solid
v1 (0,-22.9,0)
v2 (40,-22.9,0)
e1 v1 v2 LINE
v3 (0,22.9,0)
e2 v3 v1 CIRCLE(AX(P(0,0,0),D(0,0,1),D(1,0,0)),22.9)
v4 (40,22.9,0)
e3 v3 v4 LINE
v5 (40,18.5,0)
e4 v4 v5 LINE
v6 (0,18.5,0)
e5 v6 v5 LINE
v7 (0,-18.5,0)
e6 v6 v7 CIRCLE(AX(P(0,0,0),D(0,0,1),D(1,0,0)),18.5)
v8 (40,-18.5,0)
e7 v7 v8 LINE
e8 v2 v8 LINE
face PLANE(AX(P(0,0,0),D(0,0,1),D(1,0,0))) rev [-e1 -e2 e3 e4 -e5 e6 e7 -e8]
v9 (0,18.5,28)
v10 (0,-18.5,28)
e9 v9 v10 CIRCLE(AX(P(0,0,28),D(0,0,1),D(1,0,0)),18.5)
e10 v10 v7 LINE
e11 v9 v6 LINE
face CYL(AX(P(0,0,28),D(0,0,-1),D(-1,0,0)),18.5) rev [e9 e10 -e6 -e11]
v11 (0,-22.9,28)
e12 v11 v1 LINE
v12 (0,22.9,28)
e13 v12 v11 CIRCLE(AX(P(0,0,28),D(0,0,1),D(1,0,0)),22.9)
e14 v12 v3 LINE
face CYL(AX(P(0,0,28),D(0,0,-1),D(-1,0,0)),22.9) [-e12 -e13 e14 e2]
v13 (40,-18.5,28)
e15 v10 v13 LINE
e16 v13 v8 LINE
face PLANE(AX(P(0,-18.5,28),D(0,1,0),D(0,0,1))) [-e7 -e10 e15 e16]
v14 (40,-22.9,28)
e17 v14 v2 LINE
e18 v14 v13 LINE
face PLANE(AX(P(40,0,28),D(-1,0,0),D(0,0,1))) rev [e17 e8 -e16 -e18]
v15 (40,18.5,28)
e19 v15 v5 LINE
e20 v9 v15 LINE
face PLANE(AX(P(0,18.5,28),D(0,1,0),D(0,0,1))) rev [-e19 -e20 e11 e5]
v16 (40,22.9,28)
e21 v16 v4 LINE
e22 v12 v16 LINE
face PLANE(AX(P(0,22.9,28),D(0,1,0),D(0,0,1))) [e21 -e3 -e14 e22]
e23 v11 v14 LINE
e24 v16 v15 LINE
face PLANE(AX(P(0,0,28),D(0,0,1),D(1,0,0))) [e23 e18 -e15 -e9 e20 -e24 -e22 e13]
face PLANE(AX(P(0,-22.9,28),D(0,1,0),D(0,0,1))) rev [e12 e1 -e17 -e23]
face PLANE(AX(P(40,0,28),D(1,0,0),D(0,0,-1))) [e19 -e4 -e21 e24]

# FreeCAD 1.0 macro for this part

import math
import FreeCAD as App
import Part
import Sketcher

doc = App.newDocument("Part")
params = doc.addObject("Spreadsheet::Sheet", "Params")
for row, (alias, value) in enumerate([
    ("sketch1_radius", "22.9 mm"),
    ("sketch1_radius2", "18.5 mm"),
    ("sketch1_width", "40 mm"),
    ("pad1_length", "28 mm"),
], start=1):
    params.set(f"A{row}", alias)
    params.set(f"B{row}", "=" + value)
    params.setAlias(f"B{row}", alias)

body = doc.addObject("PartDesign::Body", "Body")

# Sketch on XY plane
sketch1 = body.newObject("Sketcher::SketchObject", "Sketch")
sketch1.AttachmentSupport = (doc.getObject("XY_Plane"), [""])
sketch1.MapMode = "FlatFace"
sketch1.addGeometry(Part.LineSegment(App.Vector(40, 18.5, 0), App.Vector(40, 22.9, 0)), False)
sketch1.addGeometry(Part.LineSegment(App.Vector(40, 22.9, 0), App.Vector(0, 22.9, 0)), False)
sketch1.addGeometry(Part.ArcOfCircle(Part.Circle(App.Vector(0, 0, 0), App.Vector(0, 0, 1), 22.9), math.radians(90), math.radians(270)), False)
sketch1.addGeometry(Part.LineSegment(App.Vector(0, -22.9, 0), App.Vector(40, -22.9, 0)), False)
sketch1.addGeometry(Part.LineSegment(App.Vector(40, -22.9, 0), App.Vector(40, -18.5, 0)), False)
sketch1.addGeometry(Part.LineSegment(App.Vector(40, -18.5, 0), App.Vector(0, -18.5, 0)), False)
sketch1.addGeometry(Part.ArcOfCircle(Part.Circle(App.Vector(0, 0, 0), App.Vector(0, 0, 1), 18.5), math.radians(90), math.radians(270)), False)
sketch1.addGeometry(Part.LineSegment(App.Vector(0, 18.5, 0), App.Vector(40, 18.5, 0)), False)
sketch1.addConstraint(Sketcher.Constraint("Coincident", 0, 2, 1, 1))
sketch1.addConstraint(Sketcher.Constraint("Tangent", 1, 2, 2, 1))
sketch1.addConstraint(Sketcher.Constraint("Tangent", 2, 2, 3, 1))
sketch1.addConstraint(Sketcher.Constraint("Coincident", 3, 2, 4, 1))
sketch1.addConstraint(Sketcher.Constraint("Coincident", 4, 2, 5, 1))
sketch1.addConstraint(Sketcher.Constraint("Tangent", 5, 2, 6, 2))
sketch1.addConstraint(Sketcher.Constraint("Tangent", 6, 1, 7, 1))
sketch1.addConstraint(Sketcher.Constraint("Coincident", 7, 2, 0, 1))
sketch1.addConstraint(Sketcher.Constraint("Vertical", 0))
sketch1.addConstraint(Sketcher.Constraint("Horizontal", 1))
sketch1.addConstraint(Sketcher.Constraint("Horizontal", 3))
sketch1.addConstraint(Sketcher.Constraint("Vertical", 4))
sketch1.addConstraint(Sketcher.Constraint("Horizontal", 5))
sketch1.addConstraint(Sketcher.Constraint("Horizontal", 7))
sketch1.addConstraint(Sketcher.Constraint("Coincident", 2, 3, -1, 1))
sketch1.addConstraint(Sketcher.Constraint("Coincident", 6, 3, -1, 1))
sketch1.addConstraint(Sketcher.Constraint("Vertical", 0, 2, 3, 2))
sketch1.addConstraint(Sketcher.Constraint("Radius", 2, 22.9))
sketch1.addConstraint(Sketcher.Constraint("Radius", 6, 18.5))
sketch1.addConstraint(Sketcher.Constraint("DistanceX", 1, 2, 1, 1, 40.0))
sketch1.setExpression("Constraints[17]", "Params.sketch1_radius")
sketch1.setExpression("Constraints[18]", "Params.sketch1_radius2")
sketch1.setExpression("Constraints[19]", "Params.sketch1_width")
pad1 = body.newObject("PartDesign::Pad", "Pad")
pad1.Profile = sketch1
pad1.setExpression("Length", "Params.pad1_length")

doc.recompute()
